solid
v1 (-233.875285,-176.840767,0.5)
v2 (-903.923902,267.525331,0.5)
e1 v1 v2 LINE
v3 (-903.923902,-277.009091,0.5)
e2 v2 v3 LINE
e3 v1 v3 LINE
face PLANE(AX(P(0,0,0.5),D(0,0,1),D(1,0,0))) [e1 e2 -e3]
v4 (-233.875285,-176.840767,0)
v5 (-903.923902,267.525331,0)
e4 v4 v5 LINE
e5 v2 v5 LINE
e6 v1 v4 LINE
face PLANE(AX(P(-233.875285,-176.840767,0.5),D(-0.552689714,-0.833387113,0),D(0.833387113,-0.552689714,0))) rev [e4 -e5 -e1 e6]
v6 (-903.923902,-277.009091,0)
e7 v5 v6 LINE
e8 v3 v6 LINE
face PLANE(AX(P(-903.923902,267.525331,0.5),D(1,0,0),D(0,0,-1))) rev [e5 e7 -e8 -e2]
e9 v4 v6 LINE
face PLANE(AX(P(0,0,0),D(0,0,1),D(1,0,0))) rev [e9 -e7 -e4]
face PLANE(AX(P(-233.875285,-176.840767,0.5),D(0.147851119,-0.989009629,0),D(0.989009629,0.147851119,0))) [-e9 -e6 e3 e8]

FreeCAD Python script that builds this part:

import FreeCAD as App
import Part
import Sketcher
Q = App.Units.Quantity


def add_polygon(sketch, points):
    """Adds a closed chain of lines whose ends are joined by coincident constraints."""
    first, n = sketch.GeometryCount, len(points)
    for a, b in zip(points, points[1:] + points[:1]):
        sketch.addGeometry(Part.LineSegment(App.Vector(*a, 0), App.Vector(*b, 0)), False)
    for i in range(n):
        sketch.addConstraint(Sketcher.Constraint("Coincident", first + i, 2, first + (i + 1) % n, 1))

doc = App.newDocument("Part")
body = doc.addObject("PartDesign::Body", "Body")

sketch1 = body.newObject("Sketcher::SketchObject", "Sketch")
sketch1.AttachmentSupport = (doc.getObject("XY_Plane"), [""])
sketch1.MapMode = "FlatFace"
add_polygon(sketch1, [(-904, -277), (-234, -177), (-904, 268)])
sketch1.addConstraint([
    Sketcher.Constraint("Vertical", 2),
    Sketcher.Constraint("DistanceY", 2, 2, 2, 1, Q("544.534422 mm")),
    Sketcher.Constraint("DistanceX", 1, 2, -1, 1, Q("903.923902 mm")),
    Sketcher.Constraint("DistanceY", -1, 1, 1, 2, Q("267.525331 mm")),
    Sketcher.Constraint("Distance", 0, Q("677.494533 mm")),
    Sketcher.Constraint("Distance", 1, Q("804.006453 mm")),
])
pad1 = body.newObject("PartDesign::Pad", "Pad")
pad1.Profile = sketch1
pad1.Length = 0.5

doc.recompute()
